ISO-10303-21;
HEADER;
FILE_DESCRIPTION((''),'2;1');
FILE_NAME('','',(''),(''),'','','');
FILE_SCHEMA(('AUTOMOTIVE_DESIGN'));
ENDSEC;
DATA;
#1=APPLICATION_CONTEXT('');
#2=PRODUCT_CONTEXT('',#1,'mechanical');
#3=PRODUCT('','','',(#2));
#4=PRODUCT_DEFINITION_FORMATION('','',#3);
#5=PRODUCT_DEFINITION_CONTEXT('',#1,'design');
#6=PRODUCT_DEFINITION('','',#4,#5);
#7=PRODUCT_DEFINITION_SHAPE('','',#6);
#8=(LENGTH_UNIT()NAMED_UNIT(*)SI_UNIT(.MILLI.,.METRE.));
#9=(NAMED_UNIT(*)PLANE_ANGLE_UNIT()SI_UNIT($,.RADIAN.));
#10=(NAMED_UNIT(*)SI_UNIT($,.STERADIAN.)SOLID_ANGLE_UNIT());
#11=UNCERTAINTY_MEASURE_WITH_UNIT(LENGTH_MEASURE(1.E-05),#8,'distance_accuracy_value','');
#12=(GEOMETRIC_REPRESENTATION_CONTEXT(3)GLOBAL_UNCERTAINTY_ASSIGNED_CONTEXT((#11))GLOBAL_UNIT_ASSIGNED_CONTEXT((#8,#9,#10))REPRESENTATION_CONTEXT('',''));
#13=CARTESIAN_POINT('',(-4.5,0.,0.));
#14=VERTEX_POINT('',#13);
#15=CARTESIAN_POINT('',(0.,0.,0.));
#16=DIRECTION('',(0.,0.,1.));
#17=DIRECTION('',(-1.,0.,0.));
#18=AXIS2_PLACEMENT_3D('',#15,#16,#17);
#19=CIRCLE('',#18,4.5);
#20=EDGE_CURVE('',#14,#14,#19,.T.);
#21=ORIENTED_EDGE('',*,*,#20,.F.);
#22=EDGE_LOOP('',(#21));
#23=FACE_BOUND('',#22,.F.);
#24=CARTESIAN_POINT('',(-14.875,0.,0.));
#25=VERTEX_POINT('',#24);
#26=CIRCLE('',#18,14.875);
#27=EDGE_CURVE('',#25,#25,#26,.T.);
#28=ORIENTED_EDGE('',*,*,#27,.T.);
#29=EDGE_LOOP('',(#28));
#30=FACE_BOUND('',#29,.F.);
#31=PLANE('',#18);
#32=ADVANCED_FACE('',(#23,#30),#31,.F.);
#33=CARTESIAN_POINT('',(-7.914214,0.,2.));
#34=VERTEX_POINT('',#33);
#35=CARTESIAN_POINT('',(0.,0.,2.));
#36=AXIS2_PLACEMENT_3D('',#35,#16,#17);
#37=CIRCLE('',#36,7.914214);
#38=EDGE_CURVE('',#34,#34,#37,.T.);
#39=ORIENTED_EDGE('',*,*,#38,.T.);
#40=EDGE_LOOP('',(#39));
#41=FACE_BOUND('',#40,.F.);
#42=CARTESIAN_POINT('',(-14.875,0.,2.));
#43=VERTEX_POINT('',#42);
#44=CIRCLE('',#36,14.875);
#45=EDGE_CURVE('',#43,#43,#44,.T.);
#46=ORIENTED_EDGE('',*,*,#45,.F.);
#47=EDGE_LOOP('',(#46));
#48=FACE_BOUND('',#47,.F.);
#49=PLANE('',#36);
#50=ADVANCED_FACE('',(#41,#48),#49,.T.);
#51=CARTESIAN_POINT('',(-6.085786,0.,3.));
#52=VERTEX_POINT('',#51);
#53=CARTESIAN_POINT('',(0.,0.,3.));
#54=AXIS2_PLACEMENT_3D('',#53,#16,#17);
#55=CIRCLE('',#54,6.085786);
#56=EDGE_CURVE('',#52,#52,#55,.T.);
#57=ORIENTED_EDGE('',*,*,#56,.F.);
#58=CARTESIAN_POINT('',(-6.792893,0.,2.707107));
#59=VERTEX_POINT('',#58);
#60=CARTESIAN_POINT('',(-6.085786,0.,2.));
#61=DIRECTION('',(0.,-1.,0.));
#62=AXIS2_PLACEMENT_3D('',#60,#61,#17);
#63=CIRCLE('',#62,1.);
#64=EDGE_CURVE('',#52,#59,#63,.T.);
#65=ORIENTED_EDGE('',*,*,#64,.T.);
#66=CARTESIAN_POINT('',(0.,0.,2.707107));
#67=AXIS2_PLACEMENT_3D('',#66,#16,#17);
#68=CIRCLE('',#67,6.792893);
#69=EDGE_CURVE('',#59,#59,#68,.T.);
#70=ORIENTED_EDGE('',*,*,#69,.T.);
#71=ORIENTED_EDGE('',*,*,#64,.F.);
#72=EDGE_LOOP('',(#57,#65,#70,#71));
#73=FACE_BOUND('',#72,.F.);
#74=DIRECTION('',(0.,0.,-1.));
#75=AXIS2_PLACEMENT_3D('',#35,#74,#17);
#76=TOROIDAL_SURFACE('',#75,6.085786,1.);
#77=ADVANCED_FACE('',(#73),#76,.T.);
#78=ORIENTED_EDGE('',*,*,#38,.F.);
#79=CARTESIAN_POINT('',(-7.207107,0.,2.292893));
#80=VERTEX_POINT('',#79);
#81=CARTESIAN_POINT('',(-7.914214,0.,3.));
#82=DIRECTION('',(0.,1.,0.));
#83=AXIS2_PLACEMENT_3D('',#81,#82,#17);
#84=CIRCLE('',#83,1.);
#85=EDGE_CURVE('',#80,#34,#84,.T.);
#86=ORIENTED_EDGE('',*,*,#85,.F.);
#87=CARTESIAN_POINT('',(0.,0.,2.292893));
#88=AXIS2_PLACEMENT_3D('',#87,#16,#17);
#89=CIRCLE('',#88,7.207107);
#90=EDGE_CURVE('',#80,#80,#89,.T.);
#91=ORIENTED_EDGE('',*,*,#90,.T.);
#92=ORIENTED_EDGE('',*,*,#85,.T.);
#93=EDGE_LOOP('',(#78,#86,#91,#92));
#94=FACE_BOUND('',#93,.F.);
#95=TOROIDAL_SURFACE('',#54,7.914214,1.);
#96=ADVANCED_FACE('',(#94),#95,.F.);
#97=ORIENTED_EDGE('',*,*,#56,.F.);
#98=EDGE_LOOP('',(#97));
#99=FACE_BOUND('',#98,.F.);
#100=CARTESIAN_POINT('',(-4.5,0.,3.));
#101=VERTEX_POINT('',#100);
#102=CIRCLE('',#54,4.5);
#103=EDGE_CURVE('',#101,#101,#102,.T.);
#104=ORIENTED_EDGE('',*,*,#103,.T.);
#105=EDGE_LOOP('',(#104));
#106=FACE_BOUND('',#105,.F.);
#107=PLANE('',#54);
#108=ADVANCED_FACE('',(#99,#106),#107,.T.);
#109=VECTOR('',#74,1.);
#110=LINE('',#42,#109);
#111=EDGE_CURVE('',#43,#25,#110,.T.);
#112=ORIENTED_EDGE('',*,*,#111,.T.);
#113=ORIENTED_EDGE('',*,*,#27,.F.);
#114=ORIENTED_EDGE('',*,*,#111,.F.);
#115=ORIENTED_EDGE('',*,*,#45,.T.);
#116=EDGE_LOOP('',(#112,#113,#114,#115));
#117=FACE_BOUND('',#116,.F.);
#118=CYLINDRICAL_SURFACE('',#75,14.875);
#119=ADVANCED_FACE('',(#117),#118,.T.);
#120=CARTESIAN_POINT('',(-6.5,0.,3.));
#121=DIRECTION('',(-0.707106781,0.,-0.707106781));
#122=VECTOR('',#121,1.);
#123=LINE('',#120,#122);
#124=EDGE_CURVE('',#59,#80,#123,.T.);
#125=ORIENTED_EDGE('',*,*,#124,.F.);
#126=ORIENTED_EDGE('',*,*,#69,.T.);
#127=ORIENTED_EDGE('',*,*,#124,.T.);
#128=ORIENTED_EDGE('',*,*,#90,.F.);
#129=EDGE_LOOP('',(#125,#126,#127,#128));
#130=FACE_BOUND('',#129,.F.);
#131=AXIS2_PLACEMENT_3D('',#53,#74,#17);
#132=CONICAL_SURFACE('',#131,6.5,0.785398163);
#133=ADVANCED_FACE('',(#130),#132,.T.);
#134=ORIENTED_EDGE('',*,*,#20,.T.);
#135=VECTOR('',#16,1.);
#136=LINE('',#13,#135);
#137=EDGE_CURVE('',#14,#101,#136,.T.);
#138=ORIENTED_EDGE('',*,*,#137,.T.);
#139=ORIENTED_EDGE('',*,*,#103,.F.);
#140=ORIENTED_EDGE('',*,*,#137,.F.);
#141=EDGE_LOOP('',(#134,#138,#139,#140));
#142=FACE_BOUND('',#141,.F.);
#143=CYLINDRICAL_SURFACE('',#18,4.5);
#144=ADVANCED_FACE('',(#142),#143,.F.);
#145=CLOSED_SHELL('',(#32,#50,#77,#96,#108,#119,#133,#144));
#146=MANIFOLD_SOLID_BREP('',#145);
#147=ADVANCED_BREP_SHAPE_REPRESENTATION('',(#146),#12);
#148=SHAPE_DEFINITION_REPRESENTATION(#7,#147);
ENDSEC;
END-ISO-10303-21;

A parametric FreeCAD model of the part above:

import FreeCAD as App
import Part
import Sketcher

V = App.Vector


def edges_at(feature, points):
    """Names of the edges that pass closest to the given points."""
    edges = feature.Shape.Edges
    near = lambda p: min(range(len(edges)), key=lambda i: edges[i].distToShape(Part.Vertex(*p))[0])
    return sorted({f"Edge{near(p) + 1}" for p in points})

doc = App.newDocument("Part")
body = doc.addObject("PartDesign::Body", "Body")

sketch1 = body.newObject("Sketcher::SketchObject", "Sketch")
sketch1.AttachmentSupport = (doc.getObject("XZ_Plane"), [""])
sketch1.MapMode = "FlatFace"
sketch1.addGeometry([
    Part.LineSegment(V(-4.5, 3, 0), V(-4.5, 0, 0)),
    Part.LineSegment(V(-4.5, 0, 0), V(-14.875, 0, 0)),
    Part.LineSegment(V(-14.875, 0, 0), V(-14.875, 2, 0)),
    Part.LineSegment(V(-14.875, 2, 0), V(-7.5, 2, 0)),
    Part.LineSegment(V(-7.5, 2, 0), V(-6.5, 3, 0)),
    Part.LineSegment(V(-6.5, 3, 0), V(-4.5, 3, 0)),
], False)
sketch1.addConstraint([
    Sketcher.Constraint("Coincident", 0, 2, 1, 1),
    Sketcher.Constraint("Coincident", 1, 2, 2, 1),
    Sketcher.Constraint("Coincident", 2, 2, 3, 1),
    Sketcher.Constraint("Coincident", 3, 2, 4, 1),
    Sketcher.Constraint("Coincident", 4, 2, 5, 1),
    Sketcher.Constraint("Coincident", 5, 2, 0, 1),
    Sketcher.Constraint("Vertical", 0),
    Sketcher.Constraint("Horizontal", 1),
    Sketcher.Constraint("Vertical", 2),
    Sketcher.Constraint("Horizontal", 3),
    Sketcher.Constraint("Horizontal", 5),
    Sketcher.Constraint("PointOnObject", 0, 2, -1),
    Sketcher.Constraint("Equal", 5, 2),
    Sketcher.Constraint("DistanceX", 5, 1, 5, 2, 2.0),
    Sketcher.Constraint("DistanceY", 0, 2, 0, 1, 3.0),
    Sketcher.Constraint("DistanceX", 3, 2, 0, 2, 3.0),
    Sketcher.Constraint("DistanceX", 0, 2, -1, 1, 4.5),
    Sketcher.Constraint("DistanceX", 1, 2, -1, 1, 14.875),
])
revolution = body.newObject("PartDesign::Revolution", "Revolution")
revolution.Profile = sketch1
revolution.ReferenceAxis = (sketch1, ["V_Axis"])
revolution.Angle = 360
doc.recompute()

fillet = body.newObject("PartDesign::Fillet", "Fillet")
fillet.Base = (revolution, edges_at(revolution, [(7.5, 0, 2), (6.5, 0, 3)]))
fillet.Radius = 1

doc.recompute()
